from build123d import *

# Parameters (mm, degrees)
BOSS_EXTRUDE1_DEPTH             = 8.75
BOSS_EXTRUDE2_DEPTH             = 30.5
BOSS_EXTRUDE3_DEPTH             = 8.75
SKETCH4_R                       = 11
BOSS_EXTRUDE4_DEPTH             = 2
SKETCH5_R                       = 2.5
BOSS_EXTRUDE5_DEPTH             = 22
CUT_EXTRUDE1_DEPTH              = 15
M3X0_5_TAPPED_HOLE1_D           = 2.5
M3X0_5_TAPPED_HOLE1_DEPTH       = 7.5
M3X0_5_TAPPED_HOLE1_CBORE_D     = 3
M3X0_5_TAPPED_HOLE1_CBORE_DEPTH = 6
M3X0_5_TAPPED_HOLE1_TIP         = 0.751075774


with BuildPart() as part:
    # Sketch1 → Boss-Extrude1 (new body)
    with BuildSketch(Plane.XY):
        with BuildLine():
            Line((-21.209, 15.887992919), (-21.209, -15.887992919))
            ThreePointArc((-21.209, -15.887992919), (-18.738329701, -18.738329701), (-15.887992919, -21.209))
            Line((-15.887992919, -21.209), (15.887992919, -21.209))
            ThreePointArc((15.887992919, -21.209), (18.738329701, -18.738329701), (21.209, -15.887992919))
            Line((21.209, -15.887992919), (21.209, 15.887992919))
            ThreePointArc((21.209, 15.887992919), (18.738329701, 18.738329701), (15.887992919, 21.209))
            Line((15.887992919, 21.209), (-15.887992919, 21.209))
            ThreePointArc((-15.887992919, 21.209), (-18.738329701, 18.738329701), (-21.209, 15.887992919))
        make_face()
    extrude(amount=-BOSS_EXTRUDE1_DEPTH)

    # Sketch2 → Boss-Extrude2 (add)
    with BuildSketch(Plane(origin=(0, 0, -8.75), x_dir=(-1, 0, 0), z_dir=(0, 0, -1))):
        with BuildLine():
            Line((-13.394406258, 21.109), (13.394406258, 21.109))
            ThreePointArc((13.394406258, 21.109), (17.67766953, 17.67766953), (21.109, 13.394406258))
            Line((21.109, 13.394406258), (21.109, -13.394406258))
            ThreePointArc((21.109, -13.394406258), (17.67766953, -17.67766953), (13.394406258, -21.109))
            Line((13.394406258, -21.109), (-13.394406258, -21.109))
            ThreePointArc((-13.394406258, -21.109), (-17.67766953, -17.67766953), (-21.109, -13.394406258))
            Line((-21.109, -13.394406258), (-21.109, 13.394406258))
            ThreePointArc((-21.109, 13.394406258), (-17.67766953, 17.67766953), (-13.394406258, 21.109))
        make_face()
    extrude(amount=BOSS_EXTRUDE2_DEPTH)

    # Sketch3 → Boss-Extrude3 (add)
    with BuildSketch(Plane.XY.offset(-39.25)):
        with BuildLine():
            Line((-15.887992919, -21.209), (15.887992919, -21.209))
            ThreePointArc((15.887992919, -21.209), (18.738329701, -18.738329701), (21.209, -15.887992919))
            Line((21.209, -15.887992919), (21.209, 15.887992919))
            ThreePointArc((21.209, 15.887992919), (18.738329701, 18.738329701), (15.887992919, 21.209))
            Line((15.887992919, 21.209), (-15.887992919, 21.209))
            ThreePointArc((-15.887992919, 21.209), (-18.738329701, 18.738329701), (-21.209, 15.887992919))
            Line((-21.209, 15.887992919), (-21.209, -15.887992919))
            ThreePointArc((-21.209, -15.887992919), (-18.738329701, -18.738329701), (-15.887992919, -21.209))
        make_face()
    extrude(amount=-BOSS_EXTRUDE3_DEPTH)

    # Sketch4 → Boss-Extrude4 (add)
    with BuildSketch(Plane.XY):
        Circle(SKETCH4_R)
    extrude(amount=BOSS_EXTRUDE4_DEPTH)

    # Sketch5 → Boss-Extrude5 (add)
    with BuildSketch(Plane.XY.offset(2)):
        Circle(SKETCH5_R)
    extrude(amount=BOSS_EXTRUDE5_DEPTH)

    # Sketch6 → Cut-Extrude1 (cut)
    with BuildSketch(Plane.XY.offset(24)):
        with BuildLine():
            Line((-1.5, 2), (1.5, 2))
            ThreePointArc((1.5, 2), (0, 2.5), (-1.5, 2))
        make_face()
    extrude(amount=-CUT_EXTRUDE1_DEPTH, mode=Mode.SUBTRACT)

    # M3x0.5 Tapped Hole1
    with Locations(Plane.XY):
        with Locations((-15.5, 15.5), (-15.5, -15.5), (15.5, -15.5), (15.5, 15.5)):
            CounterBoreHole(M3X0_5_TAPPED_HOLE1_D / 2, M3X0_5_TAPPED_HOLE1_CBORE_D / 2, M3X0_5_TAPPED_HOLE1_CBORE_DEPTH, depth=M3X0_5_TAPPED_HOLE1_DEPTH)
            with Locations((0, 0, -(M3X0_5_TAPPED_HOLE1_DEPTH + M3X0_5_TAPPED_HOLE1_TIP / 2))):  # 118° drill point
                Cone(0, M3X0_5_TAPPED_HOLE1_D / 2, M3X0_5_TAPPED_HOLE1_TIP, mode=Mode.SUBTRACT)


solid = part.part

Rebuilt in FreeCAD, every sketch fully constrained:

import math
import FreeCAD as App
import Part
import Sketcher

V = App.Vector
Q = App.Units.Quantity

doc = App.newDocument("Part")
body = doc.addObject("PartDesign::Body", "Body")

# Sketch on XY plane
sketch1 = body.newObject("Sketcher::SketchObject", "Sketch")
sketch1.AttachmentSupport = (doc.getObject("XY_Plane"), [""])
sketch1.MapMode = "FlatFace"
sketch1.addGeometry(Part.LineSegment(V(-21, 16, 0), V(-21, -16, 0)), False)
sketch1.addGeometry(Part.ArcOfCircle(Part.Circle(V(0, 0, 0), V(0, 0, 1), 27), math.radians(-143.16), math.radians(-126.84)), False)
sketch1.addGeometry(Part.LineSegment(V(-16, -21, 0), V(16, -21, 0)), False)
sketch1.addGeometry(Part.ArcOfCircle(Part.Circle(V(0, 0, 0), V(0, 0, 1), 27), math.radians(-53.16), math.radians(-36.84)), False)
sketch1.addGeometry(Part.LineSegment(V(21, -16, 0), V(21, 16, 0)), False)
sketch1.addGeometry(Part.ArcOfCircle(Part.Circle(V(0, 0, 0), V(0, 0, 1), 27), math.radians(36.84), math.radians(53.16)), False)
sketch1.addGeometry(Part.LineSegment(V(16, 21, 0), V(-16, 21, 0)), False)
sketch1.addGeometry(Part.ArcOfCircle(Part.Circle(V(0, 0, 0), V(0, 0, 1), 27), math.radians(126.84), math.radians(143.16)), False)
sketch1.addConstraint(Sketcher.Constraint("Coincident", 0, 2, 1, 1))
sketch1.addConstraint(Sketcher.Constraint("Coincident", 1, 2, 2, 1))
sketch1.addConstraint(Sketcher.Constraint("Coincident", 2, 2, 3, 1))
sketch1.addConstraint(Sketcher.Constraint("Coincident", 3, 2, 4, 1))
sketch1.addConstraint(Sketcher.Constraint("Coincident", 4, 2, 5, 1))
sketch1.addConstraint(Sketcher.Constraint("Coincident", 5, 2, 6, 1))
sketch1.addConstraint(Sketcher.Constraint("Coincident", 6, 2, 7, 1))
sketch1.addConstraint(Sketcher.Constraint("Coincident", 7, 2, 0, 1))
sketch1.addConstraint(Sketcher.Constraint("Vertical", 0))
sketch1.addConstraint(Sketcher.Constraint("Horizontal", 2))
sketch1.addConstraint(Sketcher.Constraint("Vertical", 4))
sketch1.addConstraint(Sketcher.Constraint("Horizontal", 6))
sketch1.addConstraint(Sketcher.Constraint("Coincident", 1, 3, -1, 1))
sketch1.addConstraint(Sketcher.Constraint("Coincident", 3, 3, -1, 1))
sketch1.addConstraint(Sketcher.Constraint("Coincident", 5, 3, -1, 1))
sketch1.addConstraint(Sketcher.Constraint("Coincident", 7, 3, -1, 1))
sketch1.addConstraint(Sketcher.Constraint("Equal", 1, 3))
sketch1.addConstraint(Sketcher.Constraint("Equal", 3, 5))
sketch1.addConstraint(Sketcher.Constraint("Equal", 5, 7))
sketch1.addConstraint(Sketcher.Constraint("Horizontal", 0, 2, 3, 2))
sketch1.addConstraint(Sketcher.Constraint("Vertical", 2, 2, 5, 2))
sketch1.addConstraint(Sketcher.Constraint("Equal", 6, 0))
sketch1.addConstraint(Sketcher.Constraint("Radius", 1, Q("26.5 mm")))
sketch1.addConstraint(Sketcher.Constraint("DistanceX", 0, 2, -1, 1, Q("21.209 mm")))
pad1 = body.newObject("PartDesign::Pad", "Pad")
pad1.Profile = sketch1
pad1.Length = 8.75
pad1.Reversed = True

# Sketch on XY plane
sketch2 = body.newObject("Sketcher::SketchObject", "Sketch001")
sketch2.AttachmentSupport = (doc.getObject("XY_Plane"), [""])
sketch2.MapMode = "FlatFace"
sketch2.AttachmentOffset = App.Placement(V(0, 0, -8.75), App.Rotation())
sketch2.addGeometry(Part.LineSegment(V(-13, 21, 0), V(13, 21, 0)), False)
sketch2.addGeometry(Part.ArcOfCircle(Part.Circle(V(0, 0, 0), V(0, 0, 1), 25), math.radians(32), math.radians(58)), False)
sketch2.addGeometry(Part.LineSegment(V(21, 13, 0), V(21, -13, 0)), False)
sketch2.addGeometry(Part.ArcOfCircle(Part.Circle(V(0, 0, 0), V(0, 0, 1), 25), math.radians(-58), math.radians(-32)), False)
sketch2.addGeometry(Part.LineSegment(V(13, -21, 0), V(-13, -21, 0)), False)
sketch2.addGeometry(Part.ArcOfCircle(Part.Circle(V(0, 0, 0), V(0, 0, 1), 25), math.radians(-148), math.radians(-122)), False)
sketch2.addGeometry(Part.LineSegment(V(-21, -13, 0), V(-21, 13, 0)), False)
sketch2.addGeometry(Part.ArcOfCircle(Part.Circle(V(0, 0, 0), V(0, 0, 1), 25), math.radians(122), math.radians(148)), False)
sketch2.addConstraint(Sketcher.Constraint("Coincident", 0, 2, 1, 2))
sketch2.addConstraint(Sketcher.Constraint("Coincident", 1, 1, 2, 1))
sketch2.addConstraint(Sketcher.Constraint("Coincident", 2, 2, 3, 2))
sketch2.addConstraint(Sketcher.Constraint("Coincident", 3, 1, 4, 1))
sketch2.addConstraint(Sketcher.Constraint("Coincident", 4, 2, 5, 2))
sketch2.addConstraint(Sketcher.Constraint("Coincident", 5, 1, 6, 1))
sketch2.addConstraint(Sketcher.Constraint("Coincident", 6, 2, 7, 2))
sketch2.addConstraint(Sketcher.Constraint("Coincident", 7, 1, 0, 1))
sketch2.addConstraint(Sketcher.Constraint("Horizontal", 0))
sketch2.addConstraint(Sketcher.Constraint("Vertical", 2))
sketch2.addConstraint(Sketcher.Constraint("Horizontal", 4))
sketch2.addConstraint(Sketcher.Constraint("Vertical", 6))
sketch2.addConstraint(Sketcher.Constraint("Coincident", 1, 3, -1, 1))
sketch2.addConstraint(Sketcher.Constraint("Coincident", 3, 3, -1, 1))
sketch2.addConstraint(Sketcher.Constraint("Coincident", 5, 3, -1, 1))
sketch2.addConstraint(Sketcher.Constraint("Coincident", 7, 3, -1, 1))
sketch2.addConstraint(Sketcher.Constraint("Equal", 1, 3))
sketch2.addConstraint(Sketcher.Constraint("Equal", 3, 5))
sketch2.addConstraint(Sketcher.Constraint("Equal", 5, 7))
sketch2.addConstraint(Sketcher.Constraint("Horizontal", 2, 2, 5, 1))
sketch2.addConstraint(Sketcher.Constraint("Vertical", 0, 2, 3, 1))
sketch2.addConstraint(Sketcher.Constraint("Equal", 4, 2))
sketch2.addConstraint(Sketcher.Constraint("Radius", 1, Q("25 mm")))
sketch2.addConstraint(Sketcher.Constraint("DistanceY", -1, 1, 0, 2, Q("21.109 mm")))
pad2 = body.newObject("PartDesign::Pad", "Pad001")
pad2.Profile = sketch2
pad2.Length = 30.5
pad2.Reversed = True

# Sketch on XY plane
sketch3 = body.newObject("Sketcher::SketchObject", "Sketch002")
sketch3.AttachmentSupport = (doc.getObject("XY_Plane"), [""])
sketch3.MapMode = "FlatFace"
sketch3.AttachmentOffset = App.Placement(V(0, 0, -39.25), App.Rotation())
sketch3.addGeometry(Part.LineSegment(V(-16, -21, 0), V(16, -21, 0)), False)
sketch3.addGeometry(Part.ArcOfCircle(Part.Circle(V(0, 0, 0), V(0, 0, 1), 27), math.radians(-53.16), math.radians(-36.84)), False)
sketch3.addGeometry(Part.LineSegment(V(21, -16, 0), V(21, 16, 0)), False)
sketch3.addGeometry(Part.ArcOfCircle(Part.Circle(V(0, 0, 0), V(0, 0, 1), 27), math.radians(36.84), math.radians(53.16)), False)
sketch3.addGeometry(Part.LineSegment(V(16, 21, 0), V(-16, 21, 0)), False)
sketch3.addGeometry(Part.ArcOfCircle(Part.Circle(V(0, 0, 0), V(0, 0, 1), 27), math.radians(126.84), math.radians(143.16)), False)
sketch3.addGeometry(Part.LineSegment(V(-21, 16, 0), V(-21, -16, 0)), False)
sketch3.addGeometry(Part.ArcOfCircle(Part.Circle(V(0, 0, 0), V(0, 0, 1), 27), math.radians(-143.16), math.radians(-126.84)), False)
sketch3.addConstraint(Sketcher.Constraint("Coincident", 0, 2, 1, 1))
sketch3.addConstraint(Sketcher.Constraint("Coincident", 1, 2, 2, 1))
sketch3.addConstraint(Sketcher.Constraint("Coincident", 2, 2, 3, 1))
sketch3.addConstraint(Sketcher.Constraint("Coincident", 3, 2, 4, 1))
sketch3.addConstraint(Sketcher.Constraint("Coincident", 4, 2, 5, 1))
sketch3.addConstraint(Sketcher.Constraint("Coincident", 5, 2, 6, 1))
sketch3.addConstraint(Sketcher.Constraint("Coincident", 6, 2, 7, 1))
sketch3.addConstraint(Sketcher.Constraint("Coincident", 7, 2, 0, 1))
sketch3.addConstraint(Sketcher.Constraint("Horizontal", 0))
sketch3.addConstraint(Sketcher.Constraint("Vertical", 2))
sketch3.addConstraint(Sketcher.Constraint("Horizontal", 4))
sketch3.addConstraint(Sketcher.Constraint("Vertical", 6))
sketch3.addConstraint(Sketcher.Constraint("Coincident", 1, 3, -1, 1))
sketch3.addConstraint(Sketcher.Constraint("Coincident", 3, 3, -1, 1))
sketch3.addConstraint(Sketcher.Constraint("Coincident", 5, 3, -1, 1))
sketch3.addConstraint(Sketcher.Constraint("Coincident", 7, 3, -1, 1))
sketch3.addConstraint(Sketcher.Constraint("Equal", 1, 3))
sketch3.addConstraint(Sketcher.Constraint("Equal", 3, 5))
sketch3.addConstraint(Sketcher.Constraint("Equal", 5, 7))
sketch3.addConstraint(Sketcher.Constraint("Horizontal", 2, 2, 5, 2))
sketch3.addConstraint(Sketcher.Constraint("Vertical", 0, 2, 3, 2))
sketch3.addConstraint(Sketcher.Constraint("Equal", 4, 2))
sketch3.addConstraint(Sketcher.Constraint("Radius", 1, Q("26.5 mm")))
sketch3.addConstraint(Sketcher.Constraint("DistanceY", 0, 2, -1, 1, Q("21.209 mm")))
pad3 = body.newObject("PartDesign::Pad", "Pad002")
pad3.Profile = sketch3
pad3.Length = 8.75
pad3.Reversed = True

# Sketch on XY plane
sketch4 = body.newObject("Sketcher::SketchObject", "Sketch003")
sketch4.AttachmentSupport = (doc.getObject("XY_Plane"), [""])
sketch4.MapMode = "FlatFace"
sketch4.addGeometry(Part.Circle(V(0, 0, 0), V(0, 0, 1), 11), False)
sketch4.addConstraint(Sketcher.Constraint("Coincident", 0, 3, -1, 1))
sketch4.addConstraint(Sketcher.Constraint("Diameter", 0, Q("22 mm")))
pad4 = body.newObject("PartDesign::Pad", "Pad003")
pad4.Profile = sketch4
pad4.Length = 2

# Sketch on XY plane
sketch5 = body.newObject("Sketcher::SketchObject", "Sketch004")
sketch5.AttachmentSupport = (doc.getObject("XY_Plane"), [""])
sketch5.MapMode = "FlatFace"
sketch5.AttachmentOffset = App.Placement(V(0, 0, 2), App.Rotation())
sketch5.addGeometry(Part.Circle(V(0, 0, 0), V(0, 0, 1), 2.5), False)
sketch5.addConstraint(Sketcher.Constraint("Coincident", 0, 3, -1, 1))
sketch5.addConstraint(Sketcher.Constraint("Diameter", 0, Q("5 mm")))
pad5 = body.newObject("PartDesign::Pad", "Pad004")
pad5.Profile = sketch5
pad5.Length = 22

# Sketch on XY plane
sketch6 = body.newObject("Sketcher::SketchObject", "Sketch005")
sketch6.AttachmentSupport = (doc.getObject("XY_Plane"), [""])
sketch6.MapMode = "FlatFace"
sketch6.AttachmentOffset = App.Placement(V(0, 0, 24), App.Rotation())
sketch6.addGeometry(Part.LineSegment(V(-1.5, 2, 0), V(1.5, 2, 0)), False)
sketch6.addGeometry(Part.ArcOfCircle(Part.Circle(V(0, 0, 0), V(0, 0, 1), 2.5), math.radians(53), math.radians(127)), False)
sketch6.addConstraint(Sketcher.Constraint("Coincident", 0, 1, 1, 2))
sketch6.addConstraint(Sketcher.Constraint("Coincident", 1, 1, 0, 2))
sketch6.addConstraint(Sketcher.Constraint("Horizontal", 0))
sketch6.addConstraint(Sketcher.Constraint("Coincident", 1, 3, -1, 1))
sketch6.addConstraint(Sketcher.Constraint("Radius", 1, Q("2.5 mm")))
sketch6.addConstraint(Sketcher.Constraint("DistanceX", 0, 1, 0, 2, Q("3 mm")))
pocket1 = body.newObject("PartDesign::Pocket", "Pocket")
pocket1.Profile = sketch6
pocket1.Length = 15

# Sketch on XY plane
sketch7 = body.newObject("Sketcher::SketchObject", "Sketch006")
sketch7.AttachmentSupport = (doc.getObject("XY_Plane"), [""])
sketch7.MapMode = "FlatFace"
sketch7.addGeometry(Part.Circle(V(-15.5, 15.5, 0), V(0, 0, 1), 1.2), False)
sketch7.addGeometry(Part.Circle(V(-15.5, -15.5, 0), V(0, 0, 1), 1.2), False)
sketch7.addGeometry(Part.Circle(V(15.5, -15.5, 0), V(0, 0, 1), 1.2), False)
sketch7.addGeometry(Part.Circle(V(15.5, 15.5, 0), V(0, 0, 1), 1.2), False)
sketch7.addConstraint(Sketcher.Constraint("Equal", 0, 1))
sketch7.addConstraint(Sketcher.Constraint("Equal", 1, 2))
sketch7.addConstraint(Sketcher.Constraint("Equal", 2, 3))
sketch7.addConstraint(Sketcher.Constraint("Symmetric", 0, 3, 2, 3, -1, 1))
sketch7.addConstraint(Sketcher.Constraint("Symmetric", 1, 3, 3, 3, -1, 1))
sketch7.addConstraint(Sketcher.Constraint("Symmetric", 1, 3, 2, 3, -2))
sketch7.addConstraint(Sketcher.Constraint("Diameter", 0, Q("2.5 mm")))
sketch7.addConstraint(Sketcher.Constraint("DistanceY", 1, 3, 0, 3, Q("31 mm")))
sketch7.addConstraint(Sketcher.Constraint("DistanceX", 1, 3, 2, 3, Q("31 mm")))
doc.recompute()
hole = body.newObject("PartDesign::Hole", "Hole")
hole.Profile = sketch7
hole.ThreadType = "None"
hole.Diameter = 2.5
hole.DepthType = "Dimension"
hole.Depth = 7.5
hole.DrillPoint = "Angled"
hole.DrillPointAngle = 118
hole.HoleCutType = "Counterbore"
hole.HoleCutDiameter = 3
hole.HoleCutDepth = 6

doc.recompute()
